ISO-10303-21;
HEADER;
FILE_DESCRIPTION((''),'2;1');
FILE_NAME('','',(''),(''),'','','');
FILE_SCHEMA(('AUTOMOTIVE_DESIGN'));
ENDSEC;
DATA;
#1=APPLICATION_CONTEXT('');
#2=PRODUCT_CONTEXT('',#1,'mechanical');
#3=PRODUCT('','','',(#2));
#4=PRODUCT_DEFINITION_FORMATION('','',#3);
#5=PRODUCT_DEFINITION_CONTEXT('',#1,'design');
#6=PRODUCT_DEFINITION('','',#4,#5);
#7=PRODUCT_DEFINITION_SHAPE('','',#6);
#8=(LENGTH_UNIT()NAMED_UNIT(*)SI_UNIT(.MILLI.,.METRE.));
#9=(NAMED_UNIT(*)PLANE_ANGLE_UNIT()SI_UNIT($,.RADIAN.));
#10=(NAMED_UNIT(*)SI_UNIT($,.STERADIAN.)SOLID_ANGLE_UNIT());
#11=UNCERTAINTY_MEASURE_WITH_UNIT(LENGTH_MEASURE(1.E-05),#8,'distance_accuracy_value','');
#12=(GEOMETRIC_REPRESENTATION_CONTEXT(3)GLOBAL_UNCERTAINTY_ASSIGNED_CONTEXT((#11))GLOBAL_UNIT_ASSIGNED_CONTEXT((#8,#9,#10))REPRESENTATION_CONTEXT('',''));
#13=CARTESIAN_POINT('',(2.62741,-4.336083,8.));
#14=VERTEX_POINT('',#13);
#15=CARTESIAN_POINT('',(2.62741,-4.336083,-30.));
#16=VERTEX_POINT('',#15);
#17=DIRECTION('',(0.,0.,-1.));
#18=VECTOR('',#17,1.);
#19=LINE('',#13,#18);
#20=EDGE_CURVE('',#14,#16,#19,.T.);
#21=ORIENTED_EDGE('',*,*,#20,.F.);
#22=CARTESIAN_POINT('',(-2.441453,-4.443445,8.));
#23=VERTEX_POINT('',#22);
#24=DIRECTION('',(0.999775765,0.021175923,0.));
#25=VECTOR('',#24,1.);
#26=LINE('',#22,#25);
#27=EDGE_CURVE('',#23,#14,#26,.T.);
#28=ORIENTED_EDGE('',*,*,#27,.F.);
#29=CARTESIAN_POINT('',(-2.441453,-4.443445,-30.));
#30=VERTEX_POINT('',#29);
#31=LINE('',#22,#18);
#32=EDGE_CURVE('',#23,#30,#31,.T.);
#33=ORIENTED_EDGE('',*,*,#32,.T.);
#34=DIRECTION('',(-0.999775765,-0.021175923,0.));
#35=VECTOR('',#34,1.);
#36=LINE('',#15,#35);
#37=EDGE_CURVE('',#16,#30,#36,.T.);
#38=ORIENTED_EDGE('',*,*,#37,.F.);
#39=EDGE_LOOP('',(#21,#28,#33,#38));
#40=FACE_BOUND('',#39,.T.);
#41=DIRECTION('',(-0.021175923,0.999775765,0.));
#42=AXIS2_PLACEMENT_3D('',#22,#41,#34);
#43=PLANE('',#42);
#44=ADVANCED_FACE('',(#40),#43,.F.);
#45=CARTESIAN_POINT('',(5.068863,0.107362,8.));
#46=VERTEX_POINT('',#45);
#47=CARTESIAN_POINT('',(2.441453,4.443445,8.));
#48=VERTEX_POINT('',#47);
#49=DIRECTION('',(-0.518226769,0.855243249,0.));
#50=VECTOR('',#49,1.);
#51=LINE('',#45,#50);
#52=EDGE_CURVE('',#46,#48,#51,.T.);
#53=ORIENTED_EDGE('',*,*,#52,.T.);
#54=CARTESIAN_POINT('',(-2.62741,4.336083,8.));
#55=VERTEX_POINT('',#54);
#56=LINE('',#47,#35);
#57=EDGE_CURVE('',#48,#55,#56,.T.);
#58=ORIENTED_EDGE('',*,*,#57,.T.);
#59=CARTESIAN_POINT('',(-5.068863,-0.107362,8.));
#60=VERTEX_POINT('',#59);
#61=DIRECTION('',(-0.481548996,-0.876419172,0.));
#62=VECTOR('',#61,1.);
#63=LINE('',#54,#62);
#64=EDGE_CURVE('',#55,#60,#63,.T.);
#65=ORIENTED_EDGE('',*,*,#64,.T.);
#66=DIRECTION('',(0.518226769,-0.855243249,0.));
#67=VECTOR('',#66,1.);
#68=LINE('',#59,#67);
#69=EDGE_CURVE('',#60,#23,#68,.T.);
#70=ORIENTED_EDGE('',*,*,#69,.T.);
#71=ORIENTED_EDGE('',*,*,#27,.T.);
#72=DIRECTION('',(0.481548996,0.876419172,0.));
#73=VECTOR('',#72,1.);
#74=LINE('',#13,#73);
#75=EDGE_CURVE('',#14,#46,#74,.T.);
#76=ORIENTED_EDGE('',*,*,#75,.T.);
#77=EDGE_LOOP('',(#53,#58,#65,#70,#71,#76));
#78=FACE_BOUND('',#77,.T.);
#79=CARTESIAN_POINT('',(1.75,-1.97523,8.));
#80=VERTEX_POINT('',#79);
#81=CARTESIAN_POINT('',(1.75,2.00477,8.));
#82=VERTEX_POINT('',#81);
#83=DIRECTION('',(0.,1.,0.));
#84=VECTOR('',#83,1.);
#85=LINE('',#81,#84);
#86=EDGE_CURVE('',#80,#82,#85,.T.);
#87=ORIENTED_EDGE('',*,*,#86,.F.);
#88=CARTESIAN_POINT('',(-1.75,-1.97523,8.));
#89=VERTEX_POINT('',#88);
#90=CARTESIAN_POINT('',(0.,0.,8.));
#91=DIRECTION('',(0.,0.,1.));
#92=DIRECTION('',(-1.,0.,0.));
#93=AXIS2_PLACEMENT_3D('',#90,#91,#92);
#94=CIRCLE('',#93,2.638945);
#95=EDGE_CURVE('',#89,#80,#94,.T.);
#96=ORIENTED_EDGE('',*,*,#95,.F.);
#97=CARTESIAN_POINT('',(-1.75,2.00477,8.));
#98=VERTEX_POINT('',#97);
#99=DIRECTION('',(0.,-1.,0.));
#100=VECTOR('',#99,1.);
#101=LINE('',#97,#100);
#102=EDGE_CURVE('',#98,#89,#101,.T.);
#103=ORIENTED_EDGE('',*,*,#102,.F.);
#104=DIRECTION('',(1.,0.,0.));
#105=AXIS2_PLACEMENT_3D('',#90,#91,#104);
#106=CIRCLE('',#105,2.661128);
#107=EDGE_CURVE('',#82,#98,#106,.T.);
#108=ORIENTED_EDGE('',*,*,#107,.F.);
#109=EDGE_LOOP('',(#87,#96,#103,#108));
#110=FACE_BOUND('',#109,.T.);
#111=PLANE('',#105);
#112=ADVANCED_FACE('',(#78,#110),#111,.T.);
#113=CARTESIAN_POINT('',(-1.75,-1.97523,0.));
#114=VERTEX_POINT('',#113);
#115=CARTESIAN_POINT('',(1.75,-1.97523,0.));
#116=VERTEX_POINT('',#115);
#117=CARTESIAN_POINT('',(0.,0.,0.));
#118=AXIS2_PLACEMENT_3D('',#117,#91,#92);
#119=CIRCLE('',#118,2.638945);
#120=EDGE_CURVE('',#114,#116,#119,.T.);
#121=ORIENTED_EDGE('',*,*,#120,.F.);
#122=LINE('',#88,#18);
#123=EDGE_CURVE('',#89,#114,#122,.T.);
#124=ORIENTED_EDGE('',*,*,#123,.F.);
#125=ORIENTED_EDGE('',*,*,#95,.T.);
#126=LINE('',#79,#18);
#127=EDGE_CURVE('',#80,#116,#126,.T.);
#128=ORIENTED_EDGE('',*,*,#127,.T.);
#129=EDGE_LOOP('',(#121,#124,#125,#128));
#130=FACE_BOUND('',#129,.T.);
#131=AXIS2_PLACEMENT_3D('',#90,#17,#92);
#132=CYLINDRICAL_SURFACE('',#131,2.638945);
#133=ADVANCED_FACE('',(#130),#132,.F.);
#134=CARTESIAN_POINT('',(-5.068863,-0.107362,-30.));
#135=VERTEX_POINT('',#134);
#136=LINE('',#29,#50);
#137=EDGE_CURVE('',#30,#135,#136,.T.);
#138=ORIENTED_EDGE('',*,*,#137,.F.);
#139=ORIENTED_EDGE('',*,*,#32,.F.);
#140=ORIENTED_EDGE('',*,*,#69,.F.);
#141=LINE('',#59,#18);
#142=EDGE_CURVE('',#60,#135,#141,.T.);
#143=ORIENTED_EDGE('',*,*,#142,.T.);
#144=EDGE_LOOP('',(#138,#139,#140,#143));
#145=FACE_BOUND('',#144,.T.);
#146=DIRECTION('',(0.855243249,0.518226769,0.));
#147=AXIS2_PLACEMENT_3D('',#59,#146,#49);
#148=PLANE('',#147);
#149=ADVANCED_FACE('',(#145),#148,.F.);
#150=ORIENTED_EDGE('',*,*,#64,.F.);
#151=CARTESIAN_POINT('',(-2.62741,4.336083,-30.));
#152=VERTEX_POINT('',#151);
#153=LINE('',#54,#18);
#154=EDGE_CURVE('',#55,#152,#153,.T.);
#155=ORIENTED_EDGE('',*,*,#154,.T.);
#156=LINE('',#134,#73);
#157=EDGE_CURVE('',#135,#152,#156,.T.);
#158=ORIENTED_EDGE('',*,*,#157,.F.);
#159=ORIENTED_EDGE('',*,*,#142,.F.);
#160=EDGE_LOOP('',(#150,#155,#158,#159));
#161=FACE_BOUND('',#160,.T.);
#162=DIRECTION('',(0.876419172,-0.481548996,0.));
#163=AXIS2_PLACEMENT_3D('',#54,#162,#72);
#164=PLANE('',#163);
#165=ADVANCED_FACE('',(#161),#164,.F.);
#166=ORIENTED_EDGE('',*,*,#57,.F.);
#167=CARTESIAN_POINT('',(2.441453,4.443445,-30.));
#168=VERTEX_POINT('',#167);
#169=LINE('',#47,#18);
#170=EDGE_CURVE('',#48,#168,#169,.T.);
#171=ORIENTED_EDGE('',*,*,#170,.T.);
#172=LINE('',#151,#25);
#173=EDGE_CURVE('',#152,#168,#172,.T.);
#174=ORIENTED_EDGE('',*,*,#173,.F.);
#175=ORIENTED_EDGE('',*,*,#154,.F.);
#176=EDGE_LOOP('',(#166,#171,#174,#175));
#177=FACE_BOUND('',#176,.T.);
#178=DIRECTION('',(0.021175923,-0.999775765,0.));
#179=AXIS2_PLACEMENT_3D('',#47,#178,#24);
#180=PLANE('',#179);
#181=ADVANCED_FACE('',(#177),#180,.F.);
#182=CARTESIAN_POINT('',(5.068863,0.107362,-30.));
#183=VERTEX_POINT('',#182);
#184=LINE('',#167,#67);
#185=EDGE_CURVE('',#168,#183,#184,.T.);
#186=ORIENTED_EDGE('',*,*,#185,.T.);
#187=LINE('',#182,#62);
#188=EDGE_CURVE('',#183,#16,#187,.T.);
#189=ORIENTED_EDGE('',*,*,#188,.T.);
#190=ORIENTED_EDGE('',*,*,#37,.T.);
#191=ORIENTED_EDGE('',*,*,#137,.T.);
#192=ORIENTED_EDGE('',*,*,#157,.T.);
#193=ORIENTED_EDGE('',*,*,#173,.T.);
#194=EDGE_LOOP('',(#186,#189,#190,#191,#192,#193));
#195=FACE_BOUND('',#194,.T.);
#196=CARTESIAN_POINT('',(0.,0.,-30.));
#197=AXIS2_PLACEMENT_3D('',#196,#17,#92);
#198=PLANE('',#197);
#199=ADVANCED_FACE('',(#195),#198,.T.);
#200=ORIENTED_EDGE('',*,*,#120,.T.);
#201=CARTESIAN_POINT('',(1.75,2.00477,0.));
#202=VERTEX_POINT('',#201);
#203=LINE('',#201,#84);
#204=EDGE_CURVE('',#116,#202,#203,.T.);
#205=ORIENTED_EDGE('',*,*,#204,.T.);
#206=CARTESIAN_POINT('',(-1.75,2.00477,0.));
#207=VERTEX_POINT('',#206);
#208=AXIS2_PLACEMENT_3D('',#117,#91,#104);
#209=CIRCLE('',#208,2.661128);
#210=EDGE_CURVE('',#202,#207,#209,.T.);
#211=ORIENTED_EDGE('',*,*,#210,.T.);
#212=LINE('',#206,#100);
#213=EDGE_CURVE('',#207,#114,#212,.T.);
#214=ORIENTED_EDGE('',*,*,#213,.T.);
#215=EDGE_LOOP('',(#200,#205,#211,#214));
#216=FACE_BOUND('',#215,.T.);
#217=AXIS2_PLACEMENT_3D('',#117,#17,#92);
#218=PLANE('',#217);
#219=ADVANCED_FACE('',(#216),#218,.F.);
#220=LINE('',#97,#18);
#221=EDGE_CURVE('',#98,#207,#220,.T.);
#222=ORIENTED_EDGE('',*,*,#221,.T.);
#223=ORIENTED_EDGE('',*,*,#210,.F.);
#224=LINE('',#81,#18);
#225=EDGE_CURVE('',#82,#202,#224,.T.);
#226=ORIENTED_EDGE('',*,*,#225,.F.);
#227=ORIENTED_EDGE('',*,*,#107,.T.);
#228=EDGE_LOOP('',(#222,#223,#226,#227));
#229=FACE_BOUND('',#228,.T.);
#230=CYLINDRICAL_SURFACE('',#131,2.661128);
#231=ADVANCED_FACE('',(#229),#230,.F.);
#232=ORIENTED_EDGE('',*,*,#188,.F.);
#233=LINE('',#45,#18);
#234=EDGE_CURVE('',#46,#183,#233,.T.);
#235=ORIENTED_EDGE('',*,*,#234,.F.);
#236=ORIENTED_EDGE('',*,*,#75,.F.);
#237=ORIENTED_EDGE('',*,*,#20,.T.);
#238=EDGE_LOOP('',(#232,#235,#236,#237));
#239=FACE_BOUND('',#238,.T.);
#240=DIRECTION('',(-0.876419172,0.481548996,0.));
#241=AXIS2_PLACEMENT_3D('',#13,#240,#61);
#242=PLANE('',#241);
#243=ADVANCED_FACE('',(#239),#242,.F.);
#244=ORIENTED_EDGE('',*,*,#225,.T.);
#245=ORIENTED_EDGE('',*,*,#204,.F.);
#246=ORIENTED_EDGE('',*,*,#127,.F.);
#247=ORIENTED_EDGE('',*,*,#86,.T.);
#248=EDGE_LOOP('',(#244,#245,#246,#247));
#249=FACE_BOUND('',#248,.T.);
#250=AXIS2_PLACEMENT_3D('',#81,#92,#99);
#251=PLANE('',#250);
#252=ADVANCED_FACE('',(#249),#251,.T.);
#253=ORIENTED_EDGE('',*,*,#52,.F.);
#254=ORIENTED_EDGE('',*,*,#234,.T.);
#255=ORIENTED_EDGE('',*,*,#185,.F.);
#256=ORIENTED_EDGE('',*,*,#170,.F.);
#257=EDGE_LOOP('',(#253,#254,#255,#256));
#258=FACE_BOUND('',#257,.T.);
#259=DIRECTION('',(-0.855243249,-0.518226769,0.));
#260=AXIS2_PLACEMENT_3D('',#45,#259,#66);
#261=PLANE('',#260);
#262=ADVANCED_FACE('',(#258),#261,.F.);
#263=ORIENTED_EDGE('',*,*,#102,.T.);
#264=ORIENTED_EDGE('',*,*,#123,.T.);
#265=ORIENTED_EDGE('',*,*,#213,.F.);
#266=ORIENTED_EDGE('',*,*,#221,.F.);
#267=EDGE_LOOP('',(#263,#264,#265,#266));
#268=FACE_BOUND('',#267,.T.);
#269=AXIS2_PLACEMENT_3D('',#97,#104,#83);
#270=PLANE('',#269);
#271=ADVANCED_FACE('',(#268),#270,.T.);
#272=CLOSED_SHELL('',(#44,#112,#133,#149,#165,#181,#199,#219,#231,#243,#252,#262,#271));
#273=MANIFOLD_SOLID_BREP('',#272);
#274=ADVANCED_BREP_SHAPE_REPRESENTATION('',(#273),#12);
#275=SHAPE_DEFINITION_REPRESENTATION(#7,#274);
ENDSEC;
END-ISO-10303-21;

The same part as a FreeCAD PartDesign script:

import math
import FreeCAD as App
import Part
import Sketcher

V = App.Vector


def add_polygon(sketch, points):
    """Adds a closed chain of lines whose ends are joined by coincident constraints."""
    first, n = sketch.GeometryCount, len(points)
    for a, b in zip(points, points[1:] + points[:1]):
        sketch.addGeometry(Part.LineSegment(App.Vector(*a, 0), App.Vector(*b, 0)), False)
    for i in range(n):
        sketch.addConstraint(Sketcher.Constraint("Coincident", first + i, 2, first + (i + 1) % n, 1))

doc = App.newDocument("Part")
body = doc.addObject("PartDesign::Body", "Body")

# Sketch on XY plane
sketch1 = doc.addObject("Sketcher::SketchObject", "Sketch")
body.addObject(sketch1)
sketch1.AttachmentSupport = (doc.XY_Plane, [""])
sketch1.MapMode = "FlatFace"
add_polygon(sketch1, [(2.441453, 4.443445), (-2.62741, 4.336083), (-5.068863, -0.107362), (-2.441453, -4.443445), (2.62741, -4.336083), (5.068863, 0.107362)])  # lines 0-5
sketch1.addGeometry(Part.ArcOfCircle(Part.Circle(V(0, 0, 0), V(0, 0, 1), 2.661128), math.radians(48.88171), math.radians(131.11829)), False)  # 6
sketch1.addGeometry(Part.LineSegment(V(1.75, 2.00477, 0), V(1.75, -1.97523, 0)), False)  # 7
sketch1.addGeometry(Part.ArcOfCircle(Part.Circle(V(0, 0, 0), V(0, 0, 1), 2.638945), math.radians(-131.540075), math.radians(-48.459925)), False)  # 8
sketch1.addGeometry(Part.LineSegment(V(-1.75, -1.97523, 0), V(-1.75, 2.00477, 0)), False)  # 9
sketch1.addConstraint([
    Sketcher.Constraint("Coincident", 6, 1, 7, 1),
    Sketcher.Constraint("Coincident", 7, 2, 8, 2),
    Sketcher.Constraint("Coincident", 8, 1, 9, 1),
    Sketcher.Constraint("Coincident", 9, 2, 6, 2),
    Sketcher.Constraint("Vertical", 7),
    Sketcher.Constraint("Vertical", 9),
    Sketcher.Constraint("Coincident", 6, 3, -1, 1),
    Sketcher.Constraint("Coincident", 8, 3, -1, 1),
    Sketcher.Constraint("Symmetric", 0, 2, 3, 2, -1, 1),
    Sketcher.Constraint("Symmetric", 1, 2, 4, 2, -1, 1),
    Sketcher.Constraint("Symmetric", 2, 2, 5, 2, -1, 1),
    Sketcher.Constraint("Horizontal", 7, 2, 8, 1),
    Sketcher.Constraint("Equal", 0, 1),
    Sketcher.Constraint("Equal", 1, 2),
    Sketcher.Constraint("DistanceY", 7, 2, 7, 1, 3.98),
    Sketcher.Constraint("DistanceX", 8, 1, 7, 2, 3.5),
    Sketcher.Constraint("Distance", 0, 5.07),
    Sketcher.Constraint("Radius", 6, 2.661128),
    Sketcher.Constraint("DistanceX", 0, 2, -1, 1, 2.62741),
    Sketcher.Constraint("DistanceY", 1, 2, -1, 1, 0.107362),
    Sketcher.Constraint("DistanceX", 1, 2, 2, 2, 2.62741),
])
pad1 = doc.addObject("PartDesign::Pad", "Pad")
body.addObject(pad1)
pad1.Profile = sketch1
pad1.Length = 8

# Sketch on XY plane
sketch2 = doc.addObject("Sketcher::SketchObject", "Sketch001")
body.addObject(sketch2)
sketch2.AttachmentSupport = (doc.XY_Plane, [""])
sketch2.MapMode = "FlatFace"
add_polygon(sketch2, [(-2.62741, 4.336083), (2.441453, 4.443445), (5.068863, 0.107362), (2.62741, -4.336083), (-2.441453, -4.443445), (-5.068863, -0.107362)])  # lines 0-5
sketch2.addConstraint([
    Sketcher.Constraint("Symmetric", 0, 2, 3, 2, -1, 1),
    Sketcher.Constraint("Symmetric", 1, 2, 4, 2, -1, 1),
    Sketcher.Constraint("Symmetric", 2, 2, 5, 2, -1, 1),
    Sketcher.Constraint("Equal", 0, 1),
    Sketcher.Constraint("Equal", 1, 2),
    Sketcher.Constraint("Distance", 0, 5.07),
    Sketcher.Constraint("DistanceY", -1, 1, 1, 2, 0.107362),
    Sketcher.Constraint("DistanceX", -1, 1, 2, 2, 2.62741),
    Sketcher.Constraint("DistanceX", 0, 2, 1, 2, 2.62741),
])
pad2 = doc.addObject("PartDesign::Pad", "Pad001")
body.addObject(pad2)
pad2.Profile = sketch2
pad2.Length = 30
pad2.Reversed = True

doc.recompute()
